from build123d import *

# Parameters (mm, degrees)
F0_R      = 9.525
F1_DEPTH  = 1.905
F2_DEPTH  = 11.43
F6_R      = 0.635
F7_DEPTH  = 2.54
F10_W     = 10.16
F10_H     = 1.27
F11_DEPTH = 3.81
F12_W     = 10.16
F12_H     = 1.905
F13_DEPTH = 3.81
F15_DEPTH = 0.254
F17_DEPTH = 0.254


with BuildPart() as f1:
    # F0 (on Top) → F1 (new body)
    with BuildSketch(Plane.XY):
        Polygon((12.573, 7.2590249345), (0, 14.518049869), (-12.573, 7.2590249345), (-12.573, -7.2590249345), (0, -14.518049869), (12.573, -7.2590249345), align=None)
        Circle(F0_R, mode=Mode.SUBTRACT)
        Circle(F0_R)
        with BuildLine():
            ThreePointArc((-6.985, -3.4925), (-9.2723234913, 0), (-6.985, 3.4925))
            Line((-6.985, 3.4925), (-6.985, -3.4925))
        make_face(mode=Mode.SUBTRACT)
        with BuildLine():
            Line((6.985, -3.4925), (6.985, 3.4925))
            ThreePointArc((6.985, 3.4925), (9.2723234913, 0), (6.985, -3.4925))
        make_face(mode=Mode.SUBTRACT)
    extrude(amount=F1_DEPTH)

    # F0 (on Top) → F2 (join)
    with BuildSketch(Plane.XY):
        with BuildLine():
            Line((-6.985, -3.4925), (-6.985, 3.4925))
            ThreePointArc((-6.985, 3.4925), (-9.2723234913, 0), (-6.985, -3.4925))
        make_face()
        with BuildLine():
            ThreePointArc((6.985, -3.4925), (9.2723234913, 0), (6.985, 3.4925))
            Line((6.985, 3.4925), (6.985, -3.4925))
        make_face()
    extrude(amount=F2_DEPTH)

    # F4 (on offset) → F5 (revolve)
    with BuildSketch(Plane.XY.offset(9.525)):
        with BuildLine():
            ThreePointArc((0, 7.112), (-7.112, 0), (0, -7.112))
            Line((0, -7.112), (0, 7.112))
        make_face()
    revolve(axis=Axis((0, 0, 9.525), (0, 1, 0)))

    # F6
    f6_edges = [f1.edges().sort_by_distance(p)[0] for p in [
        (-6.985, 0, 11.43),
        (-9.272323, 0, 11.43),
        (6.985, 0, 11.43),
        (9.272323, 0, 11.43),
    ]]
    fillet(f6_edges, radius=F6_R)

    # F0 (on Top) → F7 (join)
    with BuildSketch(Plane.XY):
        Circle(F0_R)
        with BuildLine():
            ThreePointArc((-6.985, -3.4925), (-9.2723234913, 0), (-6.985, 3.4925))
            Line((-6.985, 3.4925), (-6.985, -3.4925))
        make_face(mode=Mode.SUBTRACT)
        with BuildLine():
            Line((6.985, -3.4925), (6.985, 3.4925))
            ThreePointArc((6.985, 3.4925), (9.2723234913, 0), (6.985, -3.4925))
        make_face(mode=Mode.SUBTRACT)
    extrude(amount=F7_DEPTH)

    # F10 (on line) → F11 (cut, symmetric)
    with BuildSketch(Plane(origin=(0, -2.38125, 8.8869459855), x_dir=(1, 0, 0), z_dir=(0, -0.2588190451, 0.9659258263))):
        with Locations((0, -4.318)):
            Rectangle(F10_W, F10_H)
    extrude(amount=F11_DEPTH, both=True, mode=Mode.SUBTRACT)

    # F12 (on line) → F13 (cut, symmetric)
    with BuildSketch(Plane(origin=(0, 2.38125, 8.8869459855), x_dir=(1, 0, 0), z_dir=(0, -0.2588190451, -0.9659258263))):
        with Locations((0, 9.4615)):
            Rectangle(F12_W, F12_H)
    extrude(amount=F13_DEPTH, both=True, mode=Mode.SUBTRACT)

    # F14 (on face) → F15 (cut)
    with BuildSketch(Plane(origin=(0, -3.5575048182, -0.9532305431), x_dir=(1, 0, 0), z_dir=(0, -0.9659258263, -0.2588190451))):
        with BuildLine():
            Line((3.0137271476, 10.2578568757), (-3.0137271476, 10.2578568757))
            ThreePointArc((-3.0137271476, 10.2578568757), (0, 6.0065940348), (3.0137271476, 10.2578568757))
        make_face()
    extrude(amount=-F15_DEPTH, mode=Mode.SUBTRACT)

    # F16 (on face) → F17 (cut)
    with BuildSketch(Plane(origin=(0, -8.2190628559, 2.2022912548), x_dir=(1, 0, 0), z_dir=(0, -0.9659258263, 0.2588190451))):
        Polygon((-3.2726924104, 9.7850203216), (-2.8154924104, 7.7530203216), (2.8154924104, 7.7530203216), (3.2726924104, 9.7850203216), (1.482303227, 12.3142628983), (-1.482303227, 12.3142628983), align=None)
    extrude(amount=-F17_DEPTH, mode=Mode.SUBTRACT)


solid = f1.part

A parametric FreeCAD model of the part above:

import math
import FreeCAD as App
import Part
import Sketcher
from FreeCAD import Vector
Q = App.Units.Quantity


def edges_at(feature, points):
    """Names of the edges that pass closest to the given points."""
    edges = feature.Shape.Edges
    near = lambda p: min(range(len(edges)), key=lambda i: edges[i].distToShape(Part.Vertex(*p))[0])
    return sorted({f"Edge{near(p) + 1}" for p in points})


def add_polygon(sketch, points):
    """Adds a closed chain of lines whose ends are joined by coincident constraints."""
    first, n = sketch.GeometryCount, len(points)
    for a, b in zip(points, points[1:] + points[:1]):
        sketch.addGeometry(Part.LineSegment(App.Vector(*a, 0), App.Vector(*b, 0)), False)
    for i in range(n):
        sketch.addConstraint(Sketcher.Constraint("Coincident", first + i, 2, first + (i + 1) % n, 1))

doc = App.newDocument("Part")
body = doc.addObject("PartDesign::Body", "Body")

# Sketch on XY plane
sketch1 = body.newObject("Sketcher::SketchObject", "Sketch")
sketch1.AttachmentSupport = (doc.getObject("XY_Plane"), [""])
sketch1.MapMode = "FlatFace"
add_polygon(sketch1, [(12.6, 7.3), (0, 14.5), (-12.6, 7.3), (-12.6, -7.3), (0, -14.5), (12.6, -7.3)])  # lines 0-5
sketch1.addGeometry(Part.LineSegment(Vector(-7, 3.5, 0), Vector(-7, -3.5, 0)), False)  # 6
sketch1.addGeometry(Part.ArcOfCircle(Part.Circle(Vector(-5.5, 0, 0), Vector(0, 0, 1), 3.8), math.radians(114), math.radians(246)), False)  # 7
sketch1.addGeometry(Part.ArcOfCircle(Part.Circle(Vector(5.5, 0, 0), Vector(0, 0, 1), 3.8), math.radians(-66), math.radians(66)), False)  # 8
sketch1.addGeometry(Part.LineSegment(Vector(7, -3.5, 0), Vector(7, 3.5, 0)), False)  # 9
sketch1.addConstraint(Sketcher.Constraint("Coincident", 6, 1, 7, 1))
sketch1.addConstraint(Sketcher.Constraint("Coincident", 7, 2, 6, 2))
sketch1.addConstraint(Sketcher.Constraint("Coincident", 8, 1, 9, 1))
sketch1.addConstraint(Sketcher.Constraint("Coincident", 9, 2, 8, 2))
sketch1.addConstraint(Sketcher.Constraint("Vertical", 2))
sketch1.addConstraint(Sketcher.Constraint("Vertical", 5))
sketch1.addConstraint(Sketcher.Constraint("Vertical", 6))
sketch1.addConstraint(Sketcher.Constraint("Vertical", 9))
sketch1.addConstraint(Sketcher.Constraint("Equal", 7, 8))
sketch1.addConstraint(Sketcher.Constraint("Symmetric", 7, 3, 8, 3, -1, 1))
sketch1.addConstraint(Sketcher.Constraint("Symmetric", 0, 2, 3, 2, -1, 1))
sketch1.addConstraint(Sketcher.Constraint("Symmetric", 1, 2, 4, 2, -1, 1))
sketch1.addConstraint(Sketcher.Constraint("Symmetric", 7, 2, 8, 1, -2))
sketch1.addConstraint(Sketcher.Constraint("PointOnObject", 0, 2, -2))
sketch1.addConstraint(Sketcher.Constraint("Parallel", 0, 3))
sketch1.addConstraint(Sketcher.Constraint("Horizontal", 2, 2, 4, 2))
sketch1.addConstraint(Sketcher.Constraint("Radius", 7, Q("0.15 in")))
sketch1.addConstraint(Sketcher.Constraint("Angle", 0, Q("150 deg")))
sketch1.addConstraint(Sketcher.Constraint("DistanceY", 6, 2, 6, 1, Q("0.275 in")))
sketch1.addConstraint(Sketcher.Constraint("DistanceX", 2, 2, 4, 2, Q("0.99 in")))
sketch1.addConstraint(Sketcher.Constraint("DistanceX", 1, 2, 6, 1, Q("0.22 in")))
sketch1.addConstraint(Sketcher.Constraint("DistanceY", 2, 2, 2, 1, Q("14.51805 mm")))
pad1 = body.newObject("PartDesign::Pad", "Pad")
pad1.Profile = sketch1
pad1.Length = Q("0.075 in")

# Sketch on XY plane
sketch2 = body.newObject("Sketcher::SketchObject", "Sketch001")
sketch2.AttachmentSupport = (doc.getObject("XY_Plane"), [""])
sketch2.MapMode = "FlatFace"
sketch2.addGeometry(Part.LineSegment(Vector(-7, -3.5, 0), Vector(-7, 3.5, 0)), False)
sketch2.addGeometry(Part.ArcOfCircle(Part.Circle(Vector(-5.5, 0, 0), Vector(0, 0, 1), 3.8), math.radians(114), math.radians(246)), False)
sketch2.addGeometry(Part.ArcOfCircle(Part.Circle(Vector(5.5, 0, 0), Vector(0, 0, 1), 3.8), math.radians(-66), math.radians(66)), False)
sketch2.addGeometry(Part.LineSegment(Vector(7, 3.5, 0), Vector(7, -3.5, 0)), False)
sketch2.addConstraint(Sketcher.Constraint("Coincident", 0, 1, 1, 2))
sketch2.addConstraint(Sketcher.Constraint("Coincident", 1, 1, 0, 2))
sketch2.addConstraint(Sketcher.Constraint("Coincident", 2, 1, 3, 2))
sketch2.addConstraint(Sketcher.Constraint("Coincident", 3, 1, 2, 2))
sketch2.addConstraint(Sketcher.Constraint("Vertical", 0))
sketch2.addConstraint(Sketcher.Constraint("Vertical", 3))
sketch2.addConstraint(Sketcher.Constraint("Equal", 1, 2))
sketch2.addConstraint(Sketcher.Constraint("Symmetric", 1, 3, 2, 3, -1, 1))
sketch2.addConstraint(Sketcher.Constraint("Symmetric", 0, 1, 2, 1, -2))
sketch2.addConstraint(Sketcher.Constraint("Radius", 1, Q("0.15 in")))
sketch2.addConstraint(Sketcher.Constraint("DistanceY", 0, 1, 0, 2, Q("0.275 in")))
sketch2.addConstraint(Sketcher.Constraint("DistanceX", 0, 1, 2, 1, Q("0.55 in")))
pad2 = body.newObject("PartDesign::Pad", "Pad001")
pad2.Profile = sketch2
pad2.Length = Q("0.45 in")

# Sketch on XY plane
sketch3 = body.newObject("Sketcher::SketchObject", "Sketch002")
sketch3.AttachmentSupport = (doc.getObject("XY_Plane"), [""])
sketch3.MapMode = "FlatFace"
sketch3.AttachmentOffset = App.Placement(Vector(0, 0, 0.375 * 25.4), App.Rotation())
sketch3.addGeometry(Part.ArcOfCircle(Part.Circle(Vector(0, 0, 0), Vector(0, 0, 1), 7), math.radians(90), math.radians(270)), False)
sketch3.addGeometry(Part.LineSegment(Vector(0, -7, 0), Vector(0, 7, 0)), False)
sketch3.addConstraint(Sketcher.Constraint("Coincident", 0, 1, 1, 2))
sketch3.addConstraint(Sketcher.Constraint("Coincident", 1, 1, 0, 2))
sketch3.addConstraint(Sketcher.Constraint("Vertical", 1))
sketch3.addConstraint(Sketcher.Constraint("Coincident", 0, 3, -1, 1))
sketch3.addConstraint(Sketcher.Constraint("PointOnObject", 0, 1, -2))
sketch3.addConstraint(Sketcher.Constraint("Radius", 0, Q("0.28 in")))
revolution = body.newObject("PartDesign::Revolution", "Revolution")
revolution.Profile = sketch3
revolution.ReferenceAxis = (sketch3, ["V_Axis"])
revolution.Angle = 360
doc.recompute()

fillet = body.newObject("PartDesign::Fillet", "Fillet")
fillet.Base = (revolution, edges_at(revolution, [
    (-6.985, 0, 11.43),
    (-9.272, 0, 11.43),
    (6.985, 0, 11.43),
    (9.272, 0, 11.43),
]))
fillet.Radius = Q("0.025 in")

# Sketch on XY plane
sketch4 = body.newObject("Sketcher::SketchObject", "Sketch003")
sketch4.AttachmentSupport = (doc.getObject("XY_Plane"), [""])
sketch4.MapMode = "FlatFace"
sketch4.addGeometry(Part.Circle(Vector(0, 0, 0), Vector(0, 0, 1), 9.5), False)
sketch4.addGeometry(Part.ArcOfCircle(Part.Circle(Vector(5.5, 0, 0), Vector(0, 0, 1), 3.8), math.radians(-66), math.radians(66)), False)
sketch4.addGeometry(Part.LineSegment(Vector(7, -3.5, 0), Vector(7, 3.5, 0)), False)
sketch4.addGeometry(Part.LineSegment(Vector(-7, 3.5, 0), Vector(-7, -3.5, 0)), False)
sketch4.addGeometry(Part.ArcOfCircle(Part.Circle(Vector(-5.5, 0, 0), Vector(0, 0, 1), 3.8), math.radians(114), math.radians(246)), False)
sketch4.addConstraint(Sketcher.Constraint("Coincident", 1, 1, 2, 1))
sketch4.addConstraint(Sketcher.Constraint("Coincident", 2, 2, 1, 2))
sketch4.addConstraint(Sketcher.Constraint("Coincident", 3, 1, 4, 1))
sketch4.addConstraint(Sketcher.Constraint("Coincident", 4, 2, 3, 2))
sketch4.addConstraint(Sketcher.Constraint("Vertical", 2))
sketch4.addConstraint(Sketcher.Constraint("Vertical", 3))
sketch4.addConstraint(Sketcher.Constraint("Coincident", 0, 3, -1, 1))
sketch4.addConstraint(Sketcher.Constraint("Equal", 1, 4))
sketch4.addConstraint(Sketcher.Constraint("Symmetric", 1, 3, 4, 3, -1, 1))
sketch4.addConstraint(Sketcher.Constraint("Symmetric", 2, 2, 3, 1, -2))
sketch4.addConstraint(Sketcher.Constraint("Diameter", 0, Q("0.75 in")))
sketch4.addConstraint(Sketcher.Constraint("Radius", 1, Q("0.15 in")))
sketch4.addConstraint(Sketcher.Constraint("DistanceY", 2, 1, 2, 2, Q("0.275 in")))
sketch4.addConstraint(Sketcher.Constraint("DistanceX", 3, 1, 2, 2, Q("0.55 in")))
pad3 = body.newObject("PartDesign::Pad", "Pad002")
pad3.Profile = sketch4
pad3.Length = Q("0.1 in")

# Sketch on an angled plane
sketch5 = body.newObject("Sketcher::SketchObject", "Sketch004")
sketch5.Placement = App.Placement(Vector(0, -2.38125, 8.886946), App.Rotation(Vector(1, 0, 0), Vector(0, 0.965925826, 0.258819045), Vector(0, -0.258819045, 0.965925826), "ZXY"))
add_polygon(sketch5, [(-5.1, -3.7), (-5.1, -5), (5.1, -5), (5.1, -3.7)])  # lines 0-3
sketch5.addConstraint(Sketcher.Constraint("Vertical", 0))
sketch5.addConstraint(Sketcher.Constraint("Horizontal", 1))
sketch5.addConstraint(Sketcher.Constraint("Vertical", 2))
sketch5.addConstraint(Sketcher.Constraint("Horizontal", 3))
sketch5.addConstraint(Sketcher.Constraint("DistanceX", 1, 1, 1, 2, Q("0.4 in")))
sketch5.addConstraint(Sketcher.Constraint("DistanceY", 0, 2, 0, 1, Q("0.05 in")))
sketch5.addConstraint(Sketcher.Constraint("DistanceX", 0, 2, -1, 1, Q("0.2 in")))
sketch5.addConstraint(Sketcher.Constraint("DistanceY", 0, 2, -1, 1, Q("0.195 in")))
pocket1 = body.newObject("PartDesign::Pocket", "Pocket")
pocket1.Profile = sketch5
pocket1.Length = Q("0.3 in")
pocket1.Midplane = True

# Sketch on an angled plane
sketch6 = body.newObject("Sketcher::SketchObject", "Sketch005")
sketch6.Placement = App.Placement(Vector(0, 2.38125, 8.886946), App.Rotation(Vector(1, 0, 0), Vector(0, -0.965925826, 0.258819045), Vector(0, -0.258819045, -0.965925826), "ZXY"))
add_polygon(sketch6, [(-5.1, 10.4), (-5.1, 8.5), (5.1, 8.5), (5.1, 10.4)])  # lines 0-3
sketch6.addConstraint(Sketcher.Constraint("Vertical", 0))
sketch6.addConstraint(Sketcher.Constraint("Horizontal", 1))
sketch6.addConstraint(Sketcher.Constraint("Vertical", 2))
sketch6.addConstraint(Sketcher.Constraint("Horizontal", 3))
sketch6.addConstraint(Sketcher.Constraint("DistanceX", 1, 1, 1, 2, Q("0.4 in")))
sketch6.addConstraint(Sketcher.Constraint("DistanceX", 0, 2, -1, 1, Q("0.2 in")))
sketch6.addConstraint(Sketcher.Constraint("DistanceY", 0, 2, 0, 1, Q("0.075 in")))
sketch6.addConstraint(Sketcher.Constraint("DistanceY", -1, 1, 2, 2, Q("0.41 in")))
pocket2 = body.newObject("PartDesign::Pocket", "Pocket001")
pocket2.Profile = sketch6
pocket2.Length = Q("0.3 in")
pocket2.Midplane = True

# Sketch on an angled plane
sketch7 = body.newObject("Sketcher::SketchObject", "Sketch006")
sketch7.Placement = App.Placement(Vector(0, -3.557505, -0.953231), App.Rotation(Vector(1, 0, 0), Vector(0, -0.258819045, 0.965925826), Vector(0, -0.965925826, -0.258819045), "ZXY"))
sketch7.addGeometry(Part.LineSegment(Vector(3, 10.3, 0), Vector(-3, 10.3, 0)), False)
sketch7.addGeometry(Part.ArcOfCircle(Part.Circle(Vector(0, 9.2, 0), Vector(0, 0, 1), 3.2), math.radians(161), math.radians(379)), False)
sketch7.addConstraint(Sketcher.Constraint("Coincident", 0, 1, 1, 2))
sketch7.addConstraint(Sketcher.Constraint("Coincident", 1, 1, 0, 2))
sketch7.addConstraint(Sketcher.Constraint("Horizontal", 0))
sketch7.addConstraint(Sketcher.Constraint("PointOnObject", 1, 3, -2))
sketch7.addConstraint(Sketcher.Constraint("Radius", 1, Q("3.193849 mm")))
sketch7.addConstraint(Sketcher.Constraint("DistanceX", 0, 2, 0, 1, Q("6.027454 mm")))
sketch7.addConstraint(Sketcher.Constraint("DistanceY", -1, 1, 1, 3, Q("9.200443 mm")))
pocket3 = body.newObject("PartDesign::Pocket", "Pocket002")
pocket3.Profile = sketch7
pocket3.Length = Q("0.01 in")

# Sketch on an angled plane
sketch8 = body.newObject("Sketcher::SketchObject", "Sketch007")
sketch8.Placement = App.Placement(Vector(0, -8.219063, 2.202291), App.Rotation(Vector(1, 0, 0), Vector(0, 0.258819045, 0.965925826), Vector(0, -0.965925826, 0.258819045), "ZXY"))
add_polygon(sketch8, [(-3.3, 9.8), (-2.8, 7.8), (2.8, 7.8), (3.3, 9.8), (1.5, 12.3), (-1.5, 12.3)])  # lines 0-5
sketch8.addConstraint(Sketcher.Constraint("Horizontal", 1))
sketch8.addConstraint(Sketcher.Constraint("Horizontal", 4))
sketch8.addConstraint(Sketcher.Constraint("Symmetric", 2, 2, 5, 2, -2))
sketch8.addConstraint(Sketcher.Constraint("Equal", 0, 2))
sketch8.addConstraint(Sketcher.Constraint("Equal", 3, 5))
sketch8.addConstraint(Sketcher.Constraint("DistanceY", 1, 2, 2, 2, Q("0.08 in")))
sketch8.addConstraint(Sketcher.Constraint("Distance", 0, Q("0.082 in")))
sketch8.addConstraint(Sketcher.Constraint("Distance", 3, Q("0.122 in")))
sketch8.addConstraint(Sketcher.Constraint("DistanceX", 1, 1, 1, 2, Q("5.630985 mm")))
sketch8.addConstraint(Sketcher.Constraint("DistanceX", 4, 2, 4, 1, Q("2.964606 mm")))
sketch8.addConstraint(Sketcher.Constraint("DistanceY", -1, 1, 0, 2, Q("7.75302 mm")))
pocket4 = body.newObject("PartDesign::Pocket", "Pocket003")
pocket4.Profile = sketch8
pocket4.Length = Q("0.01 in")

doc.recompute()
